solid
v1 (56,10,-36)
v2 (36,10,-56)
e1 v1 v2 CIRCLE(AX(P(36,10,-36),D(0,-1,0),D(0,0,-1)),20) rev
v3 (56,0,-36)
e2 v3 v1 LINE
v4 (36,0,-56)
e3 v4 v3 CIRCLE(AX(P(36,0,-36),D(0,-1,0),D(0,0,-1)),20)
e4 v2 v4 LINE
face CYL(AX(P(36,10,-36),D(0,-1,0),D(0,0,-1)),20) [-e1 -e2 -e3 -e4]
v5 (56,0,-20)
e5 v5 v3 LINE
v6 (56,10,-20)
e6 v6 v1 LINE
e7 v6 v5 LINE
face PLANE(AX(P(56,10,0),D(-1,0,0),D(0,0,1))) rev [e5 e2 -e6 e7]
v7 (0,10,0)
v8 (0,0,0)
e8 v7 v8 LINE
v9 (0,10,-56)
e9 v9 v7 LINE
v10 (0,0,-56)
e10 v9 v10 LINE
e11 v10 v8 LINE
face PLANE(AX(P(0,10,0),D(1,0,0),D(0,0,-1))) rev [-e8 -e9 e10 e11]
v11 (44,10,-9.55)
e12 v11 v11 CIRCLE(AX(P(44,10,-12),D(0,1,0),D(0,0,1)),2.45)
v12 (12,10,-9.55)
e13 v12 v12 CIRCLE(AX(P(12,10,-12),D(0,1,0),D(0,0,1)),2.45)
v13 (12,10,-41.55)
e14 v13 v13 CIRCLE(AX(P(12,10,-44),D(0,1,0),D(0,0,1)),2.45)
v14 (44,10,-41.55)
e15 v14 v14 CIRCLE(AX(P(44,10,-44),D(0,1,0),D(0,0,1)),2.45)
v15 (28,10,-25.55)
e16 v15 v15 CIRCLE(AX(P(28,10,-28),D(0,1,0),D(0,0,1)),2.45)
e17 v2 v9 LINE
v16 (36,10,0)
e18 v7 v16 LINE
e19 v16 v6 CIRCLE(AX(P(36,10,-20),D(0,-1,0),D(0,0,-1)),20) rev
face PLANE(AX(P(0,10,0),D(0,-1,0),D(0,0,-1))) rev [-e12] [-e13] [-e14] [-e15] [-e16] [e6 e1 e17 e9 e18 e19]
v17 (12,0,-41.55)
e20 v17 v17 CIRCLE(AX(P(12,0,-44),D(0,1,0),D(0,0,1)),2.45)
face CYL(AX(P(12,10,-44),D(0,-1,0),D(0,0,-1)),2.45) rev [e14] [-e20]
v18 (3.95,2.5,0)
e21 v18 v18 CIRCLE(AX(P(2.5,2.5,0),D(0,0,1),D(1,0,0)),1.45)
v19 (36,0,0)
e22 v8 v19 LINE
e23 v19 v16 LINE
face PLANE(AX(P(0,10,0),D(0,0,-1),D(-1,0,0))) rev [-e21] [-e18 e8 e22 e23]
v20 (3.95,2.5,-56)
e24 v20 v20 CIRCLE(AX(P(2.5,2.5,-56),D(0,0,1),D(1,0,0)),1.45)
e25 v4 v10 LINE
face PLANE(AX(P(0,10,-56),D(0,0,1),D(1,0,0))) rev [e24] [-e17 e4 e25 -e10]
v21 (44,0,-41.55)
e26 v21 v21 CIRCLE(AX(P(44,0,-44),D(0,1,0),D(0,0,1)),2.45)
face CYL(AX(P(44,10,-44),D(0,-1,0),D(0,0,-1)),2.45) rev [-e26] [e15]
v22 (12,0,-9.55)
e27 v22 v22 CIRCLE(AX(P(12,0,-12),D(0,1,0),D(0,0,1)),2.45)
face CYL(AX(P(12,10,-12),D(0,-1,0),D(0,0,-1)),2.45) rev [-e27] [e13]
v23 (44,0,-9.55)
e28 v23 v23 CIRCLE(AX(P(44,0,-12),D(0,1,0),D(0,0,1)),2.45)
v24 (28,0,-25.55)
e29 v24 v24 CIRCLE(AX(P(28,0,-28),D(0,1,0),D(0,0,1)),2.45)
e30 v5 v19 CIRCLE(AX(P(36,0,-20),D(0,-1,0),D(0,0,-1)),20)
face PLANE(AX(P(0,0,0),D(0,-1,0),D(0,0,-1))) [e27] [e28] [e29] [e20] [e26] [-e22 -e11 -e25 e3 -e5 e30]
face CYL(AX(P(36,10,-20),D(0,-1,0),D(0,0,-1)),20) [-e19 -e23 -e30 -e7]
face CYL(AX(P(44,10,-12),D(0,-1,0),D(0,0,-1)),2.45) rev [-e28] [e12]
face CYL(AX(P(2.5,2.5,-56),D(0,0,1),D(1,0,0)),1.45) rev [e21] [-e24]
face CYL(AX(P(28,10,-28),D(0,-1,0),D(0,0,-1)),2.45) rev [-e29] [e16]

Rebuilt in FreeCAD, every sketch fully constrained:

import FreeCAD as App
import Part
import Sketcher

V = App.Vector


def edges_at(feature, points):
    """Names of the edges that pass closest to the given points."""
    edges = feature.Shape.Edges
    near = lambda p: min(range(len(edges)), key=lambda i: edges[i].distToShape(Part.Vertex(*p))[0])
    return sorted({f"Edge{near(p) + 1}" for p in points})

doc = App.newDocument("Part")
body = doc.addObject("PartDesign::Body", "Body")

sketch1 = body.newObject("Sketcher::SketchObject", "Sketch")
sketch1.AttachmentSupport = (doc.getObject("XZ_Plane"), [""])
sketch1.MapMode = "FlatFace"
sketch1.addGeometry([
    Part.LineSegment(V(0, -56, 0), V(0, 0, 0)),
    Part.LineSegment(V(0, 0, 0), V(56, 0, 0)),
    Part.LineSegment(V(56, 0, 0), V(56, -56, 0)),
    Part.LineSegment(V(56, -56, 0), V(0, -56, 0)),
    Part.Circle(V(12, -12, 0), V(0, 0, 1), 2.5),
    Part.Circle(V(44, -12, 0), V(0, 0, 1), 2.5),
    Part.Circle(V(12, -44, 0), V(0, 0, 1), 2.5),
    Part.Circle(V(28, -28, 0), V(0, 0, 1), 2.5),
    Part.Circle(V(44, -44, 0), V(0, 0, 1), 2.5),
], False)
sketch1.addConstraint([
    Sketcher.Constraint("Coincident", 0, 2, 1, 1),
    Sketcher.Constraint("Coincident", 1, 2, 2, 1),
    Sketcher.Constraint("Coincident", 2, 2, 3, 1),
    Sketcher.Constraint("Coincident", 3, 2, 0, 1),
    Sketcher.Constraint("Vertical", 0),
    Sketcher.Constraint("Horizontal", 1),
    Sketcher.Constraint("Vertical", 2),
    Sketcher.Constraint("Horizontal", 3),
    Sketcher.Constraint("Coincident", 0, 2, -1, 1),
    Sketcher.Constraint("Equal", 4, 5),
    Sketcher.Constraint("Equal", 5, 6),
    Sketcher.Constraint("Equal", 6, 7),
    Sketcher.Constraint("Equal", 7, 8),
    Sketcher.Constraint("Horizontal", 4, 3, 5, 3),
    Sketcher.Constraint("Horizontal", 6, 3, 8, 3),
    Sketcher.Constraint("Vertical", 4, 3, 6, 3),
    Sketcher.Constraint("Vertical", 5, 3, 8, 3),
    Sketcher.Constraint("Equal", 3, 0),
    Sketcher.Constraint("Diameter", 4, 4.9),
    Sketcher.Constraint("DistanceX", 1, 1, 1, 2, 56.0),
    Sketcher.Constraint("DistanceX", -1, 1, 4, 3, 12.0),
    Sketcher.Constraint("DistanceY", 4, 3, -1, 1, 12.0),
    Sketcher.Constraint("DistanceX", -1, 1, 5, 3, 44.0),
    Sketcher.Constraint("DistanceY", 6, 3, -1, 1, 44.0),
    Sketcher.Constraint("DistanceX", -1, 1, 7, 3, 28.0),
    Sketcher.Constraint("DistanceY", 7, 3, -1, 1, 28.0),
])
pad1 = body.newObject("PartDesign::Pad", "Pad")
pad1.Profile = sketch1
pad1.Length = 10
pad1.Reversed = True

sketch2 = body.newObject("Sketcher::SketchObject", "Sketch001")
sketch2.AttachmentSupport = (doc.getObject("XY_Plane"), [""])
sketch2.MapMode = "FlatFace"
sketch2.addGeometry(Part.Circle(V(2.5, 2.5, 0), V(0, 0, 1), 1.4), False)
sketch2.addConstraint([
    Sketcher.Constraint("Diameter", 0, 2.9),
    Sketcher.Constraint("DistanceX", -1, 1, 0, 3, 2.5),
    Sketcher.Constraint("DistanceY", -1, 1, 0, 3, 2.5),
])
pocket1 = body.newObject("PartDesign::Pocket", "Pocket")
pocket1.Profile = sketch2
pocket1.Type = "ThroughAll"
doc.recompute()

fillet = body.newObject("PartDesign::Fillet", "Fillet")
fillet.Base = (pocket1, edges_at(pocket1, [(56, 5, -56), (56, 5, 0)]))
fillet.Radius = 20

doc.recompute()
